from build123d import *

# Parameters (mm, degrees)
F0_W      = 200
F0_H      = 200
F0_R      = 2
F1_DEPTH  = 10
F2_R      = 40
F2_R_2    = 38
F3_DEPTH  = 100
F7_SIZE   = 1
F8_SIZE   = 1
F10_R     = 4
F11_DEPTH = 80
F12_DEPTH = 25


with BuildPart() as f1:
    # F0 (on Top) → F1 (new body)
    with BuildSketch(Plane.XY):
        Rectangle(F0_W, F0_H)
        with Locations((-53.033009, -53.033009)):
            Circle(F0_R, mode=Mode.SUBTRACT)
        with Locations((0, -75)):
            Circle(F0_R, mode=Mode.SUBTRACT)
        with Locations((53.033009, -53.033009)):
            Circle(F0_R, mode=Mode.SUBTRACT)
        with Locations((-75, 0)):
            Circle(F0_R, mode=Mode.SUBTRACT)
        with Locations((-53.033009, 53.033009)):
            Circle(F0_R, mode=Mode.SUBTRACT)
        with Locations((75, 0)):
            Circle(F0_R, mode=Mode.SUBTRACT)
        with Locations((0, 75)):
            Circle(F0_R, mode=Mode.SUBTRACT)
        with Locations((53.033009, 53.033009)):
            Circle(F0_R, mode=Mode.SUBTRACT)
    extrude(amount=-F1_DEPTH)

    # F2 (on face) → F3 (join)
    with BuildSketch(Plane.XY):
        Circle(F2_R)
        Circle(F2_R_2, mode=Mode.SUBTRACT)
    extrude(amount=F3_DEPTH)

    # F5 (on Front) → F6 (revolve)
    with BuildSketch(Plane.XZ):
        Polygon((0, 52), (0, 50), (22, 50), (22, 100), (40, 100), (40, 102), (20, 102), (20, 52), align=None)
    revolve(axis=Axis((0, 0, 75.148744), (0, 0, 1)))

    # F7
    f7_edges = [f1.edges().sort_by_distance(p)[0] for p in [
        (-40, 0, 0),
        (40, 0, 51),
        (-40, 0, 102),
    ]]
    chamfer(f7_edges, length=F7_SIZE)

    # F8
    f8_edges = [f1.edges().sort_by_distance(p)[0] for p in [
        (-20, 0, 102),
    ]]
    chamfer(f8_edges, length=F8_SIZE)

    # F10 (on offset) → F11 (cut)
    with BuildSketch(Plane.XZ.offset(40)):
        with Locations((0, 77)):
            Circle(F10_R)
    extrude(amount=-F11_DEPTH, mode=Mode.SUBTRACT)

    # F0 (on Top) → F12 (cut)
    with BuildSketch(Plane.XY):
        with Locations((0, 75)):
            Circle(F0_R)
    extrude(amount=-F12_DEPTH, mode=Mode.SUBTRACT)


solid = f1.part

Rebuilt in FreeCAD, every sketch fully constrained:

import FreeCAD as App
import Part
import Sketcher
from FreeCAD import Vector


def edges_at(feature, points):
    """Names of the edges that pass closest to the given points."""
    edges = feature.Shape.Edges
    near = lambda p: min(range(len(edges)), key=lambda i: edges[i].distToShape(Part.Vertex(*p))[0])
    return sorted({f"Edge{near(p) + 1}" for p in points})

doc = App.newDocument("Part")
body = doc.addObject("PartDesign::Body", "Body")

# Sketch on XY plane
sketch1 = body.newObject("Sketcher::SketchObject", "Sketch")
sketch1.AttachmentSupport = (doc.getObject("XY_Plane"), [""])
sketch1.MapMode = "FlatFace"
sketch1.addGeometry([
    Part.LineSegment(Vector(-100, 100, 0), Vector(-100, -100, 0)),  # 0
    Part.LineSegment(Vector(-100, -100, 0), Vector(100, -100, 0)),  # 1
    Part.LineSegment(Vector(100, -100, 0), Vector(100, 100, 0)),  # 2
    Part.LineSegment(Vector(100, 100, 0), Vector(-100, 100, 0)),  # 3
    Part.Circle(Vector(-53, -53, 0), Vector(0, 0, 1), 2),  # 4
    Part.Circle(Vector(0, -75, 0), Vector(0, 0, 1), 2),  # 5
    Part.Circle(Vector(53, -53, 0), Vector(0, 0, 1), 2),  # 6
    Part.Circle(Vector(-75, 0, 0), Vector(0, 0, 1), 2),  # 7
    Part.Circle(Vector(-53, 53, 0), Vector(0, 0, 1), 2),  # 8
    Part.Circle(Vector(75, 0, 0), Vector(0, 0, 1), 2),  # 9
    Part.Circle(Vector(0, 75, 0), Vector(0, 0, 1), 2),  # 10
    Part.Circle(Vector(53, 53, 0), Vector(0, 0, 1), 2),  # 11
], False)
sketch1.addConstraint([
    Sketcher.Constraint("Coincident", 0, 2, 1, 1),
    Sketcher.Constraint("Coincident", 1, 2, 2, 1),
    Sketcher.Constraint("Coincident", 2, 2, 3, 1),
    Sketcher.Constraint("Coincident", 3, 2, 0, 1),
    Sketcher.Constraint("Vertical", 0),
    Sketcher.Constraint("Horizontal", 1),
    Sketcher.Constraint("Vertical", 2),
    Sketcher.Constraint("Horizontal", 3),
    Sketcher.Constraint("Equal", 4, 5),
    Sketcher.Constraint("Equal", 5, 6),
    Sketcher.Constraint("Equal", 6, 7),
    Sketcher.Constraint("Equal", 7, 8),
    Sketcher.Constraint("Equal", 8, 9),
    Sketcher.Constraint("Equal", 9, 10),
    Sketcher.Constraint("Equal", 10, 11),
    Sketcher.Constraint("Symmetric", 6, 3, 8, 3, -1, 1),
    Sketcher.Constraint("Symmetric", 7, 3, 9, 3, -1, 1),
    Sketcher.Constraint("Symmetric", 5, 3, 10, 3, -1, 1),
    Sketcher.Constraint("Symmetric", 4, 3, 11, 3, -1, 1),
    Sketcher.Constraint("Symmetric", 0, 2, 2, 2, -1, 1),
    Sketcher.Constraint("Symmetric", 4, 3, 6, 3, -2),
    Sketcher.Constraint("PointOnObject", 5, 3, -2),
    Sketcher.Constraint("PointOnObject", 7, 3, -1),
    Sketcher.Constraint("Equal", 3, 0),
    Sketcher.Constraint("Diameter", 4, 4.0),
    Sketcher.Constraint("DistanceX", 1, 1, 1, 2, 200.0),
    Sketcher.Constraint("DistanceY", 5, 3, -1, 1, 75.0),
    Sketcher.Constraint("DistanceX", 7, 3, -1, 1, 75.0),
    Sketcher.Constraint("DistanceX", 4, 3, -1, 1, 53.033009),
    Sketcher.Constraint("DistanceY", 4, 3, -1, 1, 53.033009),
])
pad1 = body.newObject("PartDesign::Pad", "Pad")
pad1.Profile = sketch1
pad1.Length = 10
pad1.Reversed = True

# Sketch on XY plane
sketch2 = body.newObject("Sketcher::SketchObject", "Sketch001")
sketch2.AttachmentSupport = (doc.getObject("XY_Plane"), [""])
sketch2.MapMode = "FlatFace"
sketch2.addGeometry([
    Part.Circle(Vector(0, 0, 0), Vector(0, 0, 1), 40),
    Part.Circle(Vector(0, 0, 0), Vector(0, 0, 1), 38),
], False)
sketch2.addConstraint([
    Sketcher.Constraint("Coincident", 0, 3, -1, 1),
    Sketcher.Constraint("Coincident", 1, 3, -1, 1),
    Sketcher.Constraint("Diameter", 0, 80.0),
    Sketcher.Constraint("Diameter", 1, 76.0),
])
pad2 = body.newObject("PartDesign::Pad", "Pad001")
pad2.Profile = sketch2
pad2.Length = 100

# Sketch on XZ plane
sketch3 = body.newObject("Sketcher::SketchObject", "Sketch002")
sketch3.AttachmentSupport = (doc.getObject("XZ_Plane"), [""])
sketch3.MapMode = "FlatFace"
sketch3.addGeometry([
    Part.LineSegment(Vector(0, 52, 0), Vector(0, 50, 0)),  # 0
    Part.LineSegment(Vector(0, 50, 0), Vector(22, 50, 0)),  # 1
    Part.LineSegment(Vector(22, 50, 0), Vector(22, 100, 0)),  # 2
    Part.LineSegment(Vector(22, 100, 0), Vector(40, 100, 0)),  # 3
    Part.LineSegment(Vector(40, 100, 0), Vector(40, 102, 0)),  # 4
    Part.LineSegment(Vector(40, 102, 0), Vector(20, 102, 0)),  # 5
    Part.LineSegment(Vector(20, 102, 0), Vector(20, 52, 0)),  # 6
    Part.LineSegment(Vector(20, 52, 0), Vector(0, 52, 0)),  # 7
], False)
sketch3.addConstraint([
    Sketcher.Constraint("Coincident", 0, 2, 1, 1),
    Sketcher.Constraint("Coincident", 1, 2, 2, 1),
    Sketcher.Constraint("Coincident", 2, 2, 3, 1),
    Sketcher.Constraint("Coincident", 3, 2, 4, 1),
    Sketcher.Constraint("Coincident", 4, 2, 5, 1),
    Sketcher.Constraint("Coincident", 5, 2, 6, 1),
    Sketcher.Constraint("Coincident", 6, 2, 7, 1),
    Sketcher.Constraint("Coincident", 7, 2, 0, 1),
    Sketcher.Constraint("Vertical", 0),
    Sketcher.Constraint("Horizontal", 1),
    Sketcher.Constraint("Vertical", 2),
    Sketcher.Constraint("Horizontal", 3),
    Sketcher.Constraint("Vertical", 4),
    Sketcher.Constraint("Horizontal", 5),
    Sketcher.Constraint("Vertical", 6),
    Sketcher.Constraint("Horizontal", 7),
    Sketcher.Constraint("PointOnObject", 0, 2, -2),
    Sketcher.Constraint("Equal", 5, 7),
    Sketcher.Constraint("Equal", 0, 4),
    Sketcher.Constraint("DistanceX", 1, 1, 1, 2, 22.0),
    Sketcher.Constraint("DistanceX", 3, 1, 3, 2, 18.0),
    Sketcher.Constraint("DistanceY", 0, 2, 0, 1, 2.0),
    Sketcher.Constraint("DistanceY", 2, 1, 2, 2, 50.0),
    Sketcher.Constraint("DistanceY", -1, 1, 0, 2, 50.0),
])
revolution = body.newObject("PartDesign::Revolution", "Revolution")
revolution.Profile = sketch3
revolution.ReferenceAxis = (sketch3, ["V_Axis"])
revolution.Angle = 360
doc.recompute()

chamfer = body.newObject("PartDesign::Chamfer", "Chamfer")
chamfer.Base = (revolution, edges_at(revolution, [(-40, 0, 0), (40, 0, 50), (-40, 0, 102)]))
chamfer.Size = 1
doc.recompute()

chamfer2 = body.newObject("PartDesign::Chamfer", "Chamfer001")
chamfer2.Base = (chamfer, edges_at(chamfer, [(-20, 0, 102)]))
chamfer2.Size = 1

# Sketch on XZ plane
sketch4 = body.newObject("Sketcher::SketchObject", "Sketch003")
sketch4.AttachmentSupport = (doc.getObject("XZ_Plane"), [""])
sketch4.MapMode = "FlatFace"
sketch4.AttachmentOffset = App.Placement(Vector(0, 0, 40), App.Rotation())
sketch4.addGeometry(Part.Circle(Vector(0, 77, 0), Vector(0, 0, 1), 4), False)
sketch4.addConstraint([
    Sketcher.Constraint("PointOnObject", 0, 3, -2),
    Sketcher.Constraint("Diameter", 0, 8.0),
    Sketcher.Constraint("DistanceY", -1, 1, 0, 3, 77.0),
])
pocket1 = body.newObject("PartDesign::Pocket", "Pocket")
pocket1.Profile = sketch4
pocket1.Length = 80

# Sketch on XY plane
sketch5 = body.newObject("Sketcher::SketchObject", "Sketch004")
sketch5.AttachmentSupport = (doc.getObject("XY_Plane"), [""])
sketch5.MapMode = "FlatFace"
sketch5.addGeometry(Part.Circle(Vector(0, 75, 0), Vector(0, 0, 1), 2), False)
sketch5.addConstraint([
    Sketcher.Constraint("PointOnObject", 0, 3, -2),
    Sketcher.Constraint("Diameter", 0, 4.0),
    Sketcher.Constraint("DistanceY", -1, 1, 0, 3, 75.0),
])
pocket2 = body.newObject("PartDesign::Pocket", "Pocket001")
pocket2.Profile = sketch5
pocket2.Length = 25

doc.recompute()
